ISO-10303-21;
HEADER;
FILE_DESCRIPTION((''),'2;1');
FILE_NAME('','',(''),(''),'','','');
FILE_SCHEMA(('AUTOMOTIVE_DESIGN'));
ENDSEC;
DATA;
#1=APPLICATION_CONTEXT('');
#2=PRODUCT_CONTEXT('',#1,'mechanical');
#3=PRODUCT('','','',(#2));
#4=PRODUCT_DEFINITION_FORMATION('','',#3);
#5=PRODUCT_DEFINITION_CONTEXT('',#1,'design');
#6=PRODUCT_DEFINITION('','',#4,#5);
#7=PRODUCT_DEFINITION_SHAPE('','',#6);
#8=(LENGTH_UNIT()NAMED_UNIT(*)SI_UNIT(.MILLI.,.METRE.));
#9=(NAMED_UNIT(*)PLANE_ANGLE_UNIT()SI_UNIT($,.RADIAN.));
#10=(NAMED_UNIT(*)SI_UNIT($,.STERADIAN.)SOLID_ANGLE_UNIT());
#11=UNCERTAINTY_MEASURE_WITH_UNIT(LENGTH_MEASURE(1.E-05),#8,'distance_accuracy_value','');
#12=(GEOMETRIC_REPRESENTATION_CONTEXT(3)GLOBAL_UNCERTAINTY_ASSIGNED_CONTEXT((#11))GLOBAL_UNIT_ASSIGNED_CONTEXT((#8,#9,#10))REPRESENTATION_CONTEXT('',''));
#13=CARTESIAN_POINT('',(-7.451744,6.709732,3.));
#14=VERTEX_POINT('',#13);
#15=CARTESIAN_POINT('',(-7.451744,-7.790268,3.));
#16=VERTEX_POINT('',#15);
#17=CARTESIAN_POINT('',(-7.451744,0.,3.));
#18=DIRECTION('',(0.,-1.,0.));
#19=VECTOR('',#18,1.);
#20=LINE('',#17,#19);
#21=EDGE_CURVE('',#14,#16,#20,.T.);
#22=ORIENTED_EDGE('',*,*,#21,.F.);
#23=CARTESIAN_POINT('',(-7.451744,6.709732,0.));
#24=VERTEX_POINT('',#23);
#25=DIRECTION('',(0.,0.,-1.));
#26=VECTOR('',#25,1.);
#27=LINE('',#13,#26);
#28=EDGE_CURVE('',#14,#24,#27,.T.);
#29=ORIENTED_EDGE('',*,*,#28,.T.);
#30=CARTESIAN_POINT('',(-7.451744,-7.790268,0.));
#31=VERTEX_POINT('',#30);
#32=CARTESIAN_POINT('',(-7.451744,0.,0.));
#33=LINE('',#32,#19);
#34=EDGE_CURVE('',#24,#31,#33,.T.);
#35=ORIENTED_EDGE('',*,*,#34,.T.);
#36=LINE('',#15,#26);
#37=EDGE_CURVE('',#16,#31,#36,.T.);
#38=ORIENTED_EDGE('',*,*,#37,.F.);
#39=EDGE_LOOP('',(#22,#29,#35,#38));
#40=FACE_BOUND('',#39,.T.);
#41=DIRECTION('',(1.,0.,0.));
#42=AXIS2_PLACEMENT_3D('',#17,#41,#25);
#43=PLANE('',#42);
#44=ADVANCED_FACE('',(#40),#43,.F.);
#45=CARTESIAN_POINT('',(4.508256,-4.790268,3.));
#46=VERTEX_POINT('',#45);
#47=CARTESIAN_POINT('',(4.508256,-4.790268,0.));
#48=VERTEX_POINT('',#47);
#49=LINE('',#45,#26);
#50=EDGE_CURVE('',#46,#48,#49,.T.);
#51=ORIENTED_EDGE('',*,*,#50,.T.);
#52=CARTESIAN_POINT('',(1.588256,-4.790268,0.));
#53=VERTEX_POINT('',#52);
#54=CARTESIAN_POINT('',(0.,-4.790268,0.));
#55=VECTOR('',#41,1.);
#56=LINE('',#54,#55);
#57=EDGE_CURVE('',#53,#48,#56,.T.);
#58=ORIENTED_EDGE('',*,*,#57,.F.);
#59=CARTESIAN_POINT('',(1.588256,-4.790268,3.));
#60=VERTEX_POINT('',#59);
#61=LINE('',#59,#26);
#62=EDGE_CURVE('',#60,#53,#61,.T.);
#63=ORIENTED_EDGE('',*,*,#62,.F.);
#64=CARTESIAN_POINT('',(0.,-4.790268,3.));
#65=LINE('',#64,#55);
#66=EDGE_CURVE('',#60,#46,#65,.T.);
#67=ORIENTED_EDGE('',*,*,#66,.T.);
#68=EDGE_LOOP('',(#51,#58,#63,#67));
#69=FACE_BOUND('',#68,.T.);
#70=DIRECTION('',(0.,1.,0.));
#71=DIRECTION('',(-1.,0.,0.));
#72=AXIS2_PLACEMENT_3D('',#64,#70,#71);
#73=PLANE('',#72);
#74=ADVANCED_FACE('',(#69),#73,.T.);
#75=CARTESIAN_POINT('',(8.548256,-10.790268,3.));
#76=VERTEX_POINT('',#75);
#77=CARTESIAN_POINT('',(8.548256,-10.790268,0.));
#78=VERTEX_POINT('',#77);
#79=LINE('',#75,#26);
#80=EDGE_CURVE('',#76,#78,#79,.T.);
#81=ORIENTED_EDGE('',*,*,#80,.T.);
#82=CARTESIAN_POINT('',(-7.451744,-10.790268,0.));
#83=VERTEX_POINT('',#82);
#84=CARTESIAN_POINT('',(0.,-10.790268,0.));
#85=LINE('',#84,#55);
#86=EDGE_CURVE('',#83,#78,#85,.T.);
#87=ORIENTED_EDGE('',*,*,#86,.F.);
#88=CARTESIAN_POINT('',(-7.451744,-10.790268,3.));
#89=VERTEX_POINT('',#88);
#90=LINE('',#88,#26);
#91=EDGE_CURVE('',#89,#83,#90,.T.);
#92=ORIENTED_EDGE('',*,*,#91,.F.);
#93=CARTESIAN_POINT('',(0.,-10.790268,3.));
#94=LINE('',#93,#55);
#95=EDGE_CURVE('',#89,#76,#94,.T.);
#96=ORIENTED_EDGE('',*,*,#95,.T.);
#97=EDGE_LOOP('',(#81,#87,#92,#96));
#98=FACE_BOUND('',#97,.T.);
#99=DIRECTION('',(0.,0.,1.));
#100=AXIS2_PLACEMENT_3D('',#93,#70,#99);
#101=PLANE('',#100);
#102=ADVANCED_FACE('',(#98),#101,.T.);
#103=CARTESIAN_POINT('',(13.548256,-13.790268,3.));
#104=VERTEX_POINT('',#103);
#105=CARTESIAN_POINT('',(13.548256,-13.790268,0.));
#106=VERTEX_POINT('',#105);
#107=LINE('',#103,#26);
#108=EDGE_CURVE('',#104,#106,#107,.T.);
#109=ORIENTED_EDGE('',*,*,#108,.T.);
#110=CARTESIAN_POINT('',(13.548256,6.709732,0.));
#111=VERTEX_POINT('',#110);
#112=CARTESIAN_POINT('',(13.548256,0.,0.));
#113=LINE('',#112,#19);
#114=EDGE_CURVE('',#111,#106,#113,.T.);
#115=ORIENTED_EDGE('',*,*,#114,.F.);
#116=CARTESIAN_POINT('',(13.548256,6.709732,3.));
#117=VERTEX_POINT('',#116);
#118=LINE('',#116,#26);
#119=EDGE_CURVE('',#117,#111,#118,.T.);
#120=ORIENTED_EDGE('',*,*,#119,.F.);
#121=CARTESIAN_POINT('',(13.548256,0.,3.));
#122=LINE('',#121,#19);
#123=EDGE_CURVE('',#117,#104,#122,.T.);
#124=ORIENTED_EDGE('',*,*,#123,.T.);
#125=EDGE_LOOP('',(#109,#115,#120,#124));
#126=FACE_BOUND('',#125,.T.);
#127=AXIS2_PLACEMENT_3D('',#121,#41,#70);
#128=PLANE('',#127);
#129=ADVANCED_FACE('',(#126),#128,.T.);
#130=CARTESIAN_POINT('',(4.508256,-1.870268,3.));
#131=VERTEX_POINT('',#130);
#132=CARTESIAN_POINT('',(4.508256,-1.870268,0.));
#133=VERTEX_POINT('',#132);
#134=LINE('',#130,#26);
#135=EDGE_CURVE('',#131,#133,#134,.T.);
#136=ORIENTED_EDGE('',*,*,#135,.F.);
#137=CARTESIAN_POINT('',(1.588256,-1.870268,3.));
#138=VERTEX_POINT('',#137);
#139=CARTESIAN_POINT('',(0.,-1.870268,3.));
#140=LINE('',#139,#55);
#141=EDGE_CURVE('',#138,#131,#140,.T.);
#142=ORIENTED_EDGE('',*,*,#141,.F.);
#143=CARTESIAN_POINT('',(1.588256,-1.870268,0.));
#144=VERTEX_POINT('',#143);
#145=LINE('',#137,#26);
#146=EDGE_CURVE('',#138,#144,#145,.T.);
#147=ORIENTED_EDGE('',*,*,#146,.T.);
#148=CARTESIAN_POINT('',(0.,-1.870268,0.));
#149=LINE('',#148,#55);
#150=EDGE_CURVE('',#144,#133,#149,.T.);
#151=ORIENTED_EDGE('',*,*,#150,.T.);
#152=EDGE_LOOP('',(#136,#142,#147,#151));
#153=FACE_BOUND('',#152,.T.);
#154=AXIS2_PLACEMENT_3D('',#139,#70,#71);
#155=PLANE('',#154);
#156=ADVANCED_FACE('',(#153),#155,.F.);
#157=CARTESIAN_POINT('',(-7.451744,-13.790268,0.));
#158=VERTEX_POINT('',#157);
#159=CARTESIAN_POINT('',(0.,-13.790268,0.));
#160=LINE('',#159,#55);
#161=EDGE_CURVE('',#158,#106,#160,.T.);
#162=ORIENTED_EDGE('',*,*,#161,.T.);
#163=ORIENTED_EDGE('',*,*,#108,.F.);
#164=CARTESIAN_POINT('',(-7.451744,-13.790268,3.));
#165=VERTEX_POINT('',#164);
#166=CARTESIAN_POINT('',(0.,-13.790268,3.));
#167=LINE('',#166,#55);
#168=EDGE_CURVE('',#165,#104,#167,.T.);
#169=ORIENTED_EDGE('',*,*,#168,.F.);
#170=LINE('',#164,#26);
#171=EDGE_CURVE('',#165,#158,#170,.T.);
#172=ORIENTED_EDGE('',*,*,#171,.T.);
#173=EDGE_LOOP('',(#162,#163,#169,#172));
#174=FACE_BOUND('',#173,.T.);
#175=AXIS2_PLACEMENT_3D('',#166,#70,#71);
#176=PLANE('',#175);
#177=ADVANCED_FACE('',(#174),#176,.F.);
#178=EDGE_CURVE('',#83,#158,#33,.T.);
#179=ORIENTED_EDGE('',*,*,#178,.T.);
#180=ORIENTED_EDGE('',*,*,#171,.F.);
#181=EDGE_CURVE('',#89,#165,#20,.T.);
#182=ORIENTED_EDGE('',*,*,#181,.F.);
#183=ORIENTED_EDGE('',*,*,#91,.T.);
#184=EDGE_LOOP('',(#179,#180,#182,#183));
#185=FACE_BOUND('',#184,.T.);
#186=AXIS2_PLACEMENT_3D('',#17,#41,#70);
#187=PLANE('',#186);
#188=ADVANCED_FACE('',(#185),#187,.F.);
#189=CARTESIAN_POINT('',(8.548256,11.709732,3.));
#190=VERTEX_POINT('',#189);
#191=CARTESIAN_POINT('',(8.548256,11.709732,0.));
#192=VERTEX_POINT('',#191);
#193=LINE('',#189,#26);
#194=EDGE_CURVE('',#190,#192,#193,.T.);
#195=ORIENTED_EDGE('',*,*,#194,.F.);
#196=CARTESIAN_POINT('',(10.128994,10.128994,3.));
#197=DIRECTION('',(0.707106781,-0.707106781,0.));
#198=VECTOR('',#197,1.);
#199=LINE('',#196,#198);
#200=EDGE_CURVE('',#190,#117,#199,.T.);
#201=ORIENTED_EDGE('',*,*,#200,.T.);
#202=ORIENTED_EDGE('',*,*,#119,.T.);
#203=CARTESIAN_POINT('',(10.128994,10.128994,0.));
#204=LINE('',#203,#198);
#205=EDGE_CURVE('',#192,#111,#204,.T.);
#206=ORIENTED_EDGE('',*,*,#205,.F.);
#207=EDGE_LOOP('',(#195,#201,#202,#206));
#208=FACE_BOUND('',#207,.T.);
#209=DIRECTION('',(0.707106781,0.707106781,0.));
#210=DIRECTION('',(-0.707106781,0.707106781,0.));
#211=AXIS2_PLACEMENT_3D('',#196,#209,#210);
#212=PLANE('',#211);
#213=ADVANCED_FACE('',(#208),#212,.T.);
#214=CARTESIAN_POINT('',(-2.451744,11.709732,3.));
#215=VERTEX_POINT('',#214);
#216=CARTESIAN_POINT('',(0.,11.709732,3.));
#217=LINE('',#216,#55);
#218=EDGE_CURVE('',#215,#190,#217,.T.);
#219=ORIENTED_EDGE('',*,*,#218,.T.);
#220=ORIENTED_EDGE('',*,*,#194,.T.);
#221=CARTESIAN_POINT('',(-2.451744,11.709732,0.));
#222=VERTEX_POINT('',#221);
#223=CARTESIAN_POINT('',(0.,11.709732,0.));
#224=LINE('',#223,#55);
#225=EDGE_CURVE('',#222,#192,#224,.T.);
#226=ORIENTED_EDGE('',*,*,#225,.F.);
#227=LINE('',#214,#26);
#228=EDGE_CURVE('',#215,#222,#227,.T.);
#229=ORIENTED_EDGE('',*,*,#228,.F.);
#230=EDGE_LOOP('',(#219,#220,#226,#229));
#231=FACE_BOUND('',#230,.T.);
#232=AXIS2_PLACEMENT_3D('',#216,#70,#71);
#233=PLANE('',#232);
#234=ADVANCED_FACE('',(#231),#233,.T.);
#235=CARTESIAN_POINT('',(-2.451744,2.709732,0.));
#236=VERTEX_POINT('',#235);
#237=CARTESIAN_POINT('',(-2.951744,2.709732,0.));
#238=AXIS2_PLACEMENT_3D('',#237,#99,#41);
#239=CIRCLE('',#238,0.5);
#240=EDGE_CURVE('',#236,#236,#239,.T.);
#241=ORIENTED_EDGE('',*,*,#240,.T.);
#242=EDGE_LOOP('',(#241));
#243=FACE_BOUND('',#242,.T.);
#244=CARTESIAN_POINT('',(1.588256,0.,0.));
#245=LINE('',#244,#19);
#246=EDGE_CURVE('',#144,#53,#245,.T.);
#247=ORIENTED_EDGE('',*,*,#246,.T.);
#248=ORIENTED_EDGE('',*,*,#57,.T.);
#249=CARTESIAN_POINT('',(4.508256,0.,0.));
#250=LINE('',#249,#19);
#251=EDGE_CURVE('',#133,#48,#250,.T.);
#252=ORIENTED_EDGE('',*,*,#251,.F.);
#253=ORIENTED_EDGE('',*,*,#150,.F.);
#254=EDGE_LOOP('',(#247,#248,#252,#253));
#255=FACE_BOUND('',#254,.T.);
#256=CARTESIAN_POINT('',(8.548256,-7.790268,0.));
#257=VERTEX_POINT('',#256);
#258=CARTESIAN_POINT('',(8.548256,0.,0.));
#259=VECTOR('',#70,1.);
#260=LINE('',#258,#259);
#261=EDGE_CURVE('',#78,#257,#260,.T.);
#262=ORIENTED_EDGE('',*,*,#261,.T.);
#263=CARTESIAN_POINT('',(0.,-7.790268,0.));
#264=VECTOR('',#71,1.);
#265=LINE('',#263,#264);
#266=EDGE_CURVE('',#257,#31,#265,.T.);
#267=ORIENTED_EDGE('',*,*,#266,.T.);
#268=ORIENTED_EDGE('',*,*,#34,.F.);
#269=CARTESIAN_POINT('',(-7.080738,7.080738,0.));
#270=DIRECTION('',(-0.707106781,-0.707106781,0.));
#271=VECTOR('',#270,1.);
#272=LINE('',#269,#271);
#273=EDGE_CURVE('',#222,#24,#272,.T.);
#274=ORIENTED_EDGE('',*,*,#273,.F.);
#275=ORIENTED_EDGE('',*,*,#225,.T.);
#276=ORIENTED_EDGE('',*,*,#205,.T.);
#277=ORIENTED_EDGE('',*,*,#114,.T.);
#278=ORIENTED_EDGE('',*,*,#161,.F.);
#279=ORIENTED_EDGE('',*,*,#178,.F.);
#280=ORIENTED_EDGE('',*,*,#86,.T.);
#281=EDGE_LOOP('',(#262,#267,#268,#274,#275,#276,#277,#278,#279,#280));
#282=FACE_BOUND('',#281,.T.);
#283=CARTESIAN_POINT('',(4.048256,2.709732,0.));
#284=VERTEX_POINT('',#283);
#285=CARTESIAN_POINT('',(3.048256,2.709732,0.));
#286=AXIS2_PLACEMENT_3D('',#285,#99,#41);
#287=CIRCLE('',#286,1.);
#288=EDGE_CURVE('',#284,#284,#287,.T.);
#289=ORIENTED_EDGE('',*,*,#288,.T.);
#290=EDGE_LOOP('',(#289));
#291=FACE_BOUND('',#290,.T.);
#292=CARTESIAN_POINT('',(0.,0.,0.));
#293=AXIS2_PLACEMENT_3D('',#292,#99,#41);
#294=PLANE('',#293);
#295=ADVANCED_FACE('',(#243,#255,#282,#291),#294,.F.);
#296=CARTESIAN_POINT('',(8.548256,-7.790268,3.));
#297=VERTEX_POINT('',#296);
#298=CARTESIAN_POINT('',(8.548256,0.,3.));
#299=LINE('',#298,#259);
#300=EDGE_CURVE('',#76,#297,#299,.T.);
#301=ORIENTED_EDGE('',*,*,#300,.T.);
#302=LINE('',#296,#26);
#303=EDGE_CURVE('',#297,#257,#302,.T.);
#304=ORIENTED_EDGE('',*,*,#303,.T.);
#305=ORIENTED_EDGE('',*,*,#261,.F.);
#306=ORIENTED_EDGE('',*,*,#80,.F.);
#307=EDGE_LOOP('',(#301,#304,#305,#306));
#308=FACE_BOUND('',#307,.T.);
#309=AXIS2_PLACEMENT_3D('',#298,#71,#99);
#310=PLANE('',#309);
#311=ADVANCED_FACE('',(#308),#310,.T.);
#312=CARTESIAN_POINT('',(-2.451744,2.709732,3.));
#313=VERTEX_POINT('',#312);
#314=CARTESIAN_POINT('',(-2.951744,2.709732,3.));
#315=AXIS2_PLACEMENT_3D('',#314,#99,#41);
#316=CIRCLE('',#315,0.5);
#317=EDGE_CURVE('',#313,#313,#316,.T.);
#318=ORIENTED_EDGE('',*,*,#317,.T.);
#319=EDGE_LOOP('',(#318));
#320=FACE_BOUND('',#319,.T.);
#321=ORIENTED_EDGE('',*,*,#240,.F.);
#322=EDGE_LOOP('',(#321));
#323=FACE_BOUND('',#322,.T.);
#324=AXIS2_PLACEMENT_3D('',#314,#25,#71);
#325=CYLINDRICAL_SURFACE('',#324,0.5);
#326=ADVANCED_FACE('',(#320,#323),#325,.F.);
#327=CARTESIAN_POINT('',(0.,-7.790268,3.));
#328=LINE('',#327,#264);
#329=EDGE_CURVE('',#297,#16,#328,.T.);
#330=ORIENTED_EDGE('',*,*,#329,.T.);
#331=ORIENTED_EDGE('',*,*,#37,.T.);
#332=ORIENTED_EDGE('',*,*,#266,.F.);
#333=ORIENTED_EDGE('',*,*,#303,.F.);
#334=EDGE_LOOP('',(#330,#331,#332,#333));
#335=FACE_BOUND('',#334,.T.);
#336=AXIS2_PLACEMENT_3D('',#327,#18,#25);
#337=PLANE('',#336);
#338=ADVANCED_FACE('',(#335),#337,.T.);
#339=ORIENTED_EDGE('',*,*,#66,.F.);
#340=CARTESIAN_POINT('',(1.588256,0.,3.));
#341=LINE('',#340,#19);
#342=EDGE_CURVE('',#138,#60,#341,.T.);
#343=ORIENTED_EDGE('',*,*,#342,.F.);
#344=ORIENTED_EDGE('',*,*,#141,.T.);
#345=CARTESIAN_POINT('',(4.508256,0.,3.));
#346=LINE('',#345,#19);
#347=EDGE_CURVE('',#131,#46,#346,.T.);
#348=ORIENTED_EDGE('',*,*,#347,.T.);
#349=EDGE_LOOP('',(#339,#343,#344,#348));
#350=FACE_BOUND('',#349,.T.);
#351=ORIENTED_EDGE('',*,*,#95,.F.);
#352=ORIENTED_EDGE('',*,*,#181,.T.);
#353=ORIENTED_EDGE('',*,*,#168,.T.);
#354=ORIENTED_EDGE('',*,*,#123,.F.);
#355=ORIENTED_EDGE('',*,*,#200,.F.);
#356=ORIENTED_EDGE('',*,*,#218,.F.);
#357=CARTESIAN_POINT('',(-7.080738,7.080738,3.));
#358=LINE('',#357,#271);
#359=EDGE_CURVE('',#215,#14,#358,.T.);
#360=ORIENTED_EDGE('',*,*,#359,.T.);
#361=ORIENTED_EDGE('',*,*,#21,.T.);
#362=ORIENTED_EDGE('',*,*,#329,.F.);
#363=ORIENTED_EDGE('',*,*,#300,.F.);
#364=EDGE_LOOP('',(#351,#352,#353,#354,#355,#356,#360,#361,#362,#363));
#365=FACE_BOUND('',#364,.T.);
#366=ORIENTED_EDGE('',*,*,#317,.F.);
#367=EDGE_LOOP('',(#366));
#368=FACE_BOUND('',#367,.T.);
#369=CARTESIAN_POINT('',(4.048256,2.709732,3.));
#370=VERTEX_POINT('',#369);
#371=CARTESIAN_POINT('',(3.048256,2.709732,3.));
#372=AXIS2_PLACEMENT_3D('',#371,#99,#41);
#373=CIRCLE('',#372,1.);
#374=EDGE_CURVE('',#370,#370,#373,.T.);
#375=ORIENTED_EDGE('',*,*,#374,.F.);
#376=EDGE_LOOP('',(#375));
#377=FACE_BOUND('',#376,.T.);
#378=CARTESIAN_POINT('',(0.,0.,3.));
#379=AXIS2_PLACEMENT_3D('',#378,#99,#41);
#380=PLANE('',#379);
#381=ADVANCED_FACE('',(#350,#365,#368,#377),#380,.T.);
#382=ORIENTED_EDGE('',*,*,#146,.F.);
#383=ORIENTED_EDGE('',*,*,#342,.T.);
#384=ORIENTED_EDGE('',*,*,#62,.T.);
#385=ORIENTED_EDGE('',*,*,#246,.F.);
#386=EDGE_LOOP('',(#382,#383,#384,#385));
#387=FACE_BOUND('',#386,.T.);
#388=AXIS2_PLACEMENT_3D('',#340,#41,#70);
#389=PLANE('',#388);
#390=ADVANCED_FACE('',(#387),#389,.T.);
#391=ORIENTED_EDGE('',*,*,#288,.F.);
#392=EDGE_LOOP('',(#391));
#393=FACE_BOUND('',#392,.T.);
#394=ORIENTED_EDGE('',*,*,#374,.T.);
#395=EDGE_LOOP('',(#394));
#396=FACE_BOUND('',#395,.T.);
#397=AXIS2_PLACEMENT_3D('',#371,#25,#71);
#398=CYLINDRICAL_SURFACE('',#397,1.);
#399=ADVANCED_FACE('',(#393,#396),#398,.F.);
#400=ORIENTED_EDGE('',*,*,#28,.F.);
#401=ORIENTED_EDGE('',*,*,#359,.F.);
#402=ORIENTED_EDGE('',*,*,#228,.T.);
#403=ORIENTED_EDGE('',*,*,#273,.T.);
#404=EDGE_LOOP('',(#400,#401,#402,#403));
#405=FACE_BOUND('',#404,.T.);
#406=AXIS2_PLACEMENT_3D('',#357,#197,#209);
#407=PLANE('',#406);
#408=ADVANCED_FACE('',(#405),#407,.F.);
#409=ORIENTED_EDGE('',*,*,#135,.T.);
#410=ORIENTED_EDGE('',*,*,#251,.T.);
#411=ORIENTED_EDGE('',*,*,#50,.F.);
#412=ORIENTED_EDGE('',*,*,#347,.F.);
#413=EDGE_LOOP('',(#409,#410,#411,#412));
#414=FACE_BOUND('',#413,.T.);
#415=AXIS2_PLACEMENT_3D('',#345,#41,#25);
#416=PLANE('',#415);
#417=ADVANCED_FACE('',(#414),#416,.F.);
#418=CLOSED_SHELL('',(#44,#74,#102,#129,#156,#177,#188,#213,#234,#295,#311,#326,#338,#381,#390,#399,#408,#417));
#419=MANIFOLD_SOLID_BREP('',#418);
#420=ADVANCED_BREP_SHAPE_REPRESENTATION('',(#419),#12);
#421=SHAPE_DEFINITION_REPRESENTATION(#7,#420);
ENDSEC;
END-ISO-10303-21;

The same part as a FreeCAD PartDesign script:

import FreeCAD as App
import Part
import Sketcher

V = App.Vector
Q = App.Units.Quantity

doc = App.newDocument("Part")
params = doc.addObject("Spreadsheet::Sheet", "Params")
for row, (alias, value) in enumerate([
    ("sketch1_diameter", "1 mm"),
    ("sketch1_diameter2", "2 mm"),
    ("sketch1_width", "11 mm"),
    ("sketch1_width2", "16 mm"),
    ("sketch1_height", "3 mm"),
    ("pad1_length", "3 mm"),
], start=1):
    params.set(f"A{row}", alias)
    params.set(f"B{row}", "=" + value)
    params.setAlias(f"B{row}", alias)

body = doc.addObject("PartDesign::Body", "Body")

# Sketch on XY plane
sketch1 = body.newObject("Sketcher::SketchObject", "Sketch")
sketch1.AttachmentSupport = (doc.getObject("XY_Plane"), [""])
sketch1.MapMode = "FlatFace"
sketch1.addGeometry([
    Part.LineSegment(V(13.5, 6.7, 0), V(8.5, 11.7, 0)),  # 0
    Part.LineSegment(V(8.5, 11.7, 0), V(-2.5, 11.7, 0)),  # 1
    Part.LineSegment(V(-2.5, 11.7, 0), V(-7.5, 6.7, 0)),  # 2
    Part.LineSegment(V(-7.5, 6.7, 0), V(-7.5, -7.8, 0)),  # 3
    Part.LineSegment(V(-7.5, -7.8, 0), V(8.5, -7.8, 0)),  # 4
    Part.LineSegment(V(8.5, -7.8, 0), V(8.5, -10.8, 0)),  # 5
    Part.LineSegment(V(8.5, -10.8, 0), V(-7.5, -10.8, 0)),  # 6
    Part.LineSegment(V(-7.5, -10.8, 0), V(-7.5, -13.8, 0)),  # 7
    Part.LineSegment(V(-7.5, -13.8, 0), V(13.5, -13.8, 0)),  # 8
    Part.LineSegment(V(13.5, -13.8, 0), V(13.5, 6.7, 0)),  # 9
    Part.LineSegment(V(4.5, -4.8, 0), V(1.6, -4.8, 0)),  # 10
    Part.LineSegment(V(1.6, -4.8, 0), V(1.6, -1.9, 0)),  # 11
    Part.LineSegment(V(1.6, -1.9, 0), V(4.5, -1.9, 0)),  # 12
    Part.LineSegment(V(4.5, -1.9, 0), V(4.5, -4.8, 0)),  # 13
    Part.Circle(V(-3, 2.7, 0), V(0, 0, 1), 0.5),  # 14
    Part.Circle(V(3, 2.7, 0), V(0, 0, 1), 1),  # 15
], False)
sketch1.addConstraint([
    Sketcher.Constraint("Coincident", 0, 2, 1, 1),
    Sketcher.Constraint("Coincident", 1, 2, 2, 1),
    Sketcher.Constraint("Coincident", 2, 2, 3, 1),
    Sketcher.Constraint("Coincident", 3, 2, 4, 1),
    Sketcher.Constraint("Coincident", 4, 2, 5, 1),
    Sketcher.Constraint("Coincident", 5, 2, 6, 1),
    Sketcher.Constraint("Coincident", 6, 2, 7, 1),
    Sketcher.Constraint("Coincident", 7, 2, 8, 1),
    Sketcher.Constraint("Coincident", 8, 2, 9, 1),
    Sketcher.Constraint("Coincident", 9, 2, 0, 1),
    Sketcher.Constraint("Coincident", 10, 2, 11, 1),
    Sketcher.Constraint("Coincident", 11, 2, 12, 1),
    Sketcher.Constraint("Coincident", 12, 2, 13, 1),
    Sketcher.Constraint("Coincident", 13, 2, 10, 1),
    Sketcher.Constraint("Horizontal", 1),
    Sketcher.Constraint("Vertical", 3),
    Sketcher.Constraint("Horizontal", 4),
    Sketcher.Constraint("Vertical", 5),
    Sketcher.Constraint("Horizontal", 6),
    Sketcher.Constraint("Vertical", 7),
    Sketcher.Constraint("Horizontal", 8),
    Sketcher.Constraint("Vertical", 9),
    Sketcher.Constraint("Horizontal", 10),
    Sketcher.Constraint("Vertical", 11),
    Sketcher.Constraint("Horizontal", 12),
    Sketcher.Constraint("Vertical", 13),
    Sketcher.Constraint("Perpendicular", 0, 2),
    Sketcher.Constraint("Horizontal", 14, 3, 15, 3),
    Sketcher.Constraint("Horizontal", 2, 2, 9, 2),
    Sketcher.Constraint("Vertical", 0, 2, 4, 2),
    Sketcher.Constraint("Vertical", 3, 2, 6, 2),
    Sketcher.Constraint("Equal", 5, 7),
    Sketcher.Constraint("Equal", 12, 11),
    Sketcher.Constraint("Equal", 0, 2),
    Sketcher.Constraint("Diameter", 14, Q("1 mm")),
    Sketcher.Constraint("Diameter", 15, Q("2 mm")),
    Sketcher.Constraint("DistanceX", 1, 2, 1, 1, Q("11 mm")),
    Sketcher.Constraint("DistanceX", 4, 1, 4, 2, Q("16 mm")),
    Sketcher.Constraint("DistanceY", 5, 2, 5, 1, Q("3 mm")),
    Sketcher.Constraint("DistanceY", 3, 2, 3, 1, Q("14.5 mm")),
    Sketcher.Constraint("DistanceX", 14, 3, 15, 3, Q("6 mm")),
    Sketcher.Constraint("DistanceY", 15, 3, 0, 2, Q("9 mm")),
    Sketcher.Constraint("DistanceY", 4, 2, 10, 2, Q("3 mm")),
    Sketcher.Constraint("DistanceX", 10, 2, 10, 1, Q("2.92 mm")),
    Sketcher.Constraint("DistanceX", 15, 3, 0, 2, Q("5.5 mm")),
    Sketcher.Constraint("DistanceX", 10, 2, 4, 2, Q("6.96 mm")),
    Sketcher.Constraint("DistanceY", -1, 1, 14, 3, Q("2.709732 mm")),
    Sketcher.Constraint("DistanceX", 14, 3, -1, 1, Q("2.951744 mm")),
])
sketch1.setExpression("Constraints[34]", "Params.sketch1_diameter")
sketch1.setExpression("Constraints[35]", "Params.sketch1_diameter2")
sketch1.setExpression("Constraints[36]", "Params.sketch1_width")
sketch1.setExpression("Constraints[37]", "Params.sketch1_width2")
sketch1.setExpression("Constraints[38]", "Params.sketch1_height")
pad1 = body.newObject("PartDesign::Pad", "Pad")
pad1.Profile = sketch1
pad1.setExpression("Length", "Params.pad1_length")

doc.recompute()
